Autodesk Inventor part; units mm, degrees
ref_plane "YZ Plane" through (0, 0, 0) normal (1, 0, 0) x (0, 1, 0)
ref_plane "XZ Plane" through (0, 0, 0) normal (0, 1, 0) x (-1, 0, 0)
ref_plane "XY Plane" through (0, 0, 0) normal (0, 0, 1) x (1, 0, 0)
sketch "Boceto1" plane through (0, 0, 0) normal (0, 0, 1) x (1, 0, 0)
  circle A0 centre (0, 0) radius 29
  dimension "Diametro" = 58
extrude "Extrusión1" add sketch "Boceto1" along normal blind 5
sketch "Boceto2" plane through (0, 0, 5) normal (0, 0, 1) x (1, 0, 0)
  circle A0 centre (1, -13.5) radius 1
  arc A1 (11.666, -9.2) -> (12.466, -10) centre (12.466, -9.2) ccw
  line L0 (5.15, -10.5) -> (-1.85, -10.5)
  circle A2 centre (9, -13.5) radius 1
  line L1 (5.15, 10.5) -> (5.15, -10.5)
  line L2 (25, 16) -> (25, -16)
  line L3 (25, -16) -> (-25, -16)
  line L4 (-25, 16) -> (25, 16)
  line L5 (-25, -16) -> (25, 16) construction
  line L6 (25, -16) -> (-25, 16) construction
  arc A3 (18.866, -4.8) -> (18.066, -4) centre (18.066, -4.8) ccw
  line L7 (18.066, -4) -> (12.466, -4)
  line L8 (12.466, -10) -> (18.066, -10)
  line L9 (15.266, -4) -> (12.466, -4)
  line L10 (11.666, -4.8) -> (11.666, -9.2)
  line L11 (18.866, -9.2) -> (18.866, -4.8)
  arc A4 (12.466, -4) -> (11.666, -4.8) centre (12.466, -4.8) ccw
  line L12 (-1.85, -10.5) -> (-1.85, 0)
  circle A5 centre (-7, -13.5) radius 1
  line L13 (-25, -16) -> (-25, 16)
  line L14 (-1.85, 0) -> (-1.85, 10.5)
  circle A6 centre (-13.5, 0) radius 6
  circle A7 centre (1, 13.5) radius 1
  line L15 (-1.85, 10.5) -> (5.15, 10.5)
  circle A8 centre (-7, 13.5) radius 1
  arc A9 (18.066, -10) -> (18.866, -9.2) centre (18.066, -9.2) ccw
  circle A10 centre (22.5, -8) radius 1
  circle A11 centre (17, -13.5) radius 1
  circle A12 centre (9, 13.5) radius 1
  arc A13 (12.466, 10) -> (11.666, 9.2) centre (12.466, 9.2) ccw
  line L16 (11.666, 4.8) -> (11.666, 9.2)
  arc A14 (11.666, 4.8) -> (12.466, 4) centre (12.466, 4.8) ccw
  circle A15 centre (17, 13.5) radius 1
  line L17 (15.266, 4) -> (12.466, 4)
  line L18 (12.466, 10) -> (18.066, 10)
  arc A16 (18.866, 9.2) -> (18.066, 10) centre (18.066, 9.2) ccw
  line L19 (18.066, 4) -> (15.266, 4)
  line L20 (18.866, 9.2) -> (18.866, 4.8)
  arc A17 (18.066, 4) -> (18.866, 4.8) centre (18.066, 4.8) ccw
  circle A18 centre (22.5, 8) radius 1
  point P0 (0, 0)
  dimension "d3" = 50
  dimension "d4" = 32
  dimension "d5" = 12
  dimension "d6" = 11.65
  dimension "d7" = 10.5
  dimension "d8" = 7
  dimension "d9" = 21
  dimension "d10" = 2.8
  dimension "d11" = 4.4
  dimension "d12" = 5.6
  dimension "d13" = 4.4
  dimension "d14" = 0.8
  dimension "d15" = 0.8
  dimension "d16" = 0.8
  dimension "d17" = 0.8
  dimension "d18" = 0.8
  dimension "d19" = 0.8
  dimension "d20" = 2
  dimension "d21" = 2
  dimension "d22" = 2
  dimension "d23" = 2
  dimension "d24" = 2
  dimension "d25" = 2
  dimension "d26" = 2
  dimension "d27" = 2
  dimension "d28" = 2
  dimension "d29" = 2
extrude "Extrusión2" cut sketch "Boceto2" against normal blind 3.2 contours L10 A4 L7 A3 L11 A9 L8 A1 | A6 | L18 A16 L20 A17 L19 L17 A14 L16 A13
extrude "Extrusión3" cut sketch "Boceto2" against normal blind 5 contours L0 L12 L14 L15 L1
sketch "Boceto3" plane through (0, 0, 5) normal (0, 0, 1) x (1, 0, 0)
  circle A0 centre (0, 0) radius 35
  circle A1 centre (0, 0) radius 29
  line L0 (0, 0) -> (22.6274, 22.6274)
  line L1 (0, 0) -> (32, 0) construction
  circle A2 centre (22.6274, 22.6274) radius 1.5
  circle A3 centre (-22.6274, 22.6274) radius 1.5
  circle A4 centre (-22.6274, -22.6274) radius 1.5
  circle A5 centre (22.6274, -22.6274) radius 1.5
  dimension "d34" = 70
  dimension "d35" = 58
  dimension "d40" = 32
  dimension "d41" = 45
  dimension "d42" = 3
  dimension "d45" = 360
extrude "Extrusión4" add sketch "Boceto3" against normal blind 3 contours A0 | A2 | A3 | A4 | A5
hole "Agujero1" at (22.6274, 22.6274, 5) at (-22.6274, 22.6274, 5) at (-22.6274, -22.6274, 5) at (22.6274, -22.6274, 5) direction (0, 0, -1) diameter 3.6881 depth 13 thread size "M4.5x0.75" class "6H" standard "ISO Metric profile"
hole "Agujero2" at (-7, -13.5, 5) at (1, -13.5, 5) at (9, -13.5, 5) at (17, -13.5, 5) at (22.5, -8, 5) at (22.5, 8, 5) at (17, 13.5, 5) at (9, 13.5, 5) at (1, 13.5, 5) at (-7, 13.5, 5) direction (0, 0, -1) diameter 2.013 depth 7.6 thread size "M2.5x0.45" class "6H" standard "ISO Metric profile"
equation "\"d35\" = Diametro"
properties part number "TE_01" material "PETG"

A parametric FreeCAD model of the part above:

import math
import FreeCAD as App
import Part
import Sketcher
from FreeCAD import Vector

doc = App.newDocument("Part")
body = doc.addObject("PartDesign::Body", "Body")

sketch1 = body.newObject("Sketcher::SketchObject", "Sketch")
sketch1.AttachmentSupport = (doc.getObject("XY_Plane"), [""])
sketch1.MapMode = "FlatFace"
sketch1.addGeometry(Part.Circle(Vector(0, 0, 0), Vector(0, 0, 1), 29), False)
sketch1.addConstraint([
    Sketcher.Constraint("Coincident", 0, 3, -1, 1),
    Sketcher.Constraint("Diameter", 0, 58.0),
])
pad1 = body.newObject("PartDesign::Pad", "Pad")
pad1.Profile = sketch1
pad1.Length = 5

sketch2 = body.newObject("Sketcher::SketchObject", "Sketch001")
sketch2.AttachmentSupport = (doc.getObject("XY_Plane"), [""])
sketch2.MapMode = "FlatFace"
sketch2.AttachmentOffset = App.Placement(Vector(0, 0, 5), App.Rotation())
sketch2.addGeometry([
    Part.LineSegment(Vector(11.7, -4.8, 0), Vector(11.7, -9.2, 0)),
    Part.ArcOfCircle(Part.Circle(Vector(12.5, -9.2, 0), Vector(0, 0, 1), 0.8), math.radians(180), math.radians(270)),
    Part.LineSegment(Vector(12.5, -10, 0), Vector(18.1, -10, 0)),
    Part.ArcOfCircle(Part.Circle(Vector(18.1, -9.2, 0), Vector(0, 0, 1), 0.8), math.radians(-90), math.radians(0)),
    Part.LineSegment(Vector(18.9, -9.2, 0), Vector(18.9, -4.8, 0)),
    Part.ArcOfCircle(Part.Circle(Vector(18.1, -4.8, 0), Vector(0, 0, 1), 0.8), math.radians(0), math.radians(90)),
    Part.LineSegment(Vector(18.1, -4, 0), Vector(12.5, -4, 0)),
    Part.ArcOfCircle(Part.Circle(Vector(12.5, -4.8, 0), Vector(0, 0, 1), 0.8), math.radians(90), math.radians(180)),
    Part.Circle(Vector(-13.5, 0, 0), Vector(0, 0, 1), 6),
    Part.LineSegment(Vector(18.1, 10, 0), Vector(12.5, 10, 0)),
    Part.ArcOfCircle(Part.Circle(Vector(12.5, 9.2, 0), Vector(0, 0, 1), 0.8), math.radians(90), math.radians(180)),
    Part.LineSegment(Vector(11.7, 9.2, 0), Vector(11.7, 4.8, 0)),
    Part.ArcOfCircle(Part.Circle(Vector(12.5, 4.8, 0), Vector(0, 0, 1), 0.8), math.radians(180), math.radians(270)),
    Part.LineSegment(Vector(12.5, 4, 0), Vector(18.1, 4, 0)),
    Part.ArcOfCircle(Part.Circle(Vector(18.1, 4.8, 0), Vector(0, 0, 1), 0.8), math.radians(-90), math.radians(0)),
    Part.LineSegment(Vector(18.9, 4.8, 0), Vector(18.9, 9.2, 0)),
    Part.ArcOfCircle(Part.Circle(Vector(18.1, 9.2, 0), Vector(0, 0, 1), 0.8), math.radians(0), math.radians(90)),
], False)
sketch2.addConstraint([
    Sketcher.Constraint("Tangent", 0, 2, 1, 1),
    Sketcher.Constraint("Tangent", 1, 2, 2, 1),
    Sketcher.Constraint("Tangent", 2, 2, 3, 1),
    Sketcher.Constraint("Tangent", 3, 2, 4, 1),
    Sketcher.Constraint("Tangent", 4, 2, 5, 1),
    Sketcher.Constraint("Tangent", 5, 2, 6, 1),
    Sketcher.Constraint("Tangent", 6, 2, 7, 1),
    Sketcher.Constraint("Tangent", 7, 2, 0, 1),
    Sketcher.Constraint("Tangent", 9, 2, 10, 1),
    Sketcher.Constraint("Tangent", 10, 2, 11, 1),
    Sketcher.Constraint("Tangent", 11, 2, 12, 1),
    Sketcher.Constraint("Tangent", 12, 2, 13, 1),
    Sketcher.Constraint("Tangent", 13, 2, 14, 1),
    Sketcher.Constraint("Tangent", 14, 2, 15, 1),
    Sketcher.Constraint("Tangent", 15, 2, 16, 1),
    Sketcher.Constraint("Tangent", 16, 2, 9, 1),
    Sketcher.Constraint("Vertical", 0),
    Sketcher.Constraint("Horizontal", 2),
    Sketcher.Constraint("Vertical", 4),
    Sketcher.Constraint("Horizontal", 6),
    Sketcher.Constraint("Horizontal", 9),
    Sketcher.Constraint("Vertical", 11),
    Sketcher.Constraint("Horizontal", 13),
    Sketcher.Constraint("Vertical", 15),
    Sketcher.Constraint("Equal", 1, 3),
    Sketcher.Constraint("Equal", 3, 5),
    Sketcher.Constraint("Equal", 5, 7),
    Sketcher.Constraint("Equal", 7, 10),
    Sketcher.Constraint("Equal", 10, 12),
    Sketcher.Constraint("Equal", 12, 14),
    Sketcher.Constraint("Equal", 14, 16),
    Sketcher.Constraint("Symmetric", 1, 3, 10, 3, -1),
    Sketcher.Constraint("Symmetric", 5, 3, 14, 3, -1),
    Sketcher.Constraint("PointOnObject", 8, 3, -1),
    Sketcher.Constraint("Diameter", 8, 12.0),
    Sketcher.Constraint("Radius", 1, 0.8),
    Sketcher.Constraint("DistanceX", 2, 1, 2, 2, 5.6),
    Sketcher.Constraint("DistanceY", 0, 2, 0, 1, 4.4),
    Sketcher.Constraint("DistanceY", 1, 2, -1, 1, 10.0),
    Sketcher.Constraint("DistanceX", 8, 3, -1, 1, 13.5),
    Sketcher.Constraint("DistanceX", -1, 1, 1, 3, 12.466),
])
pocket1 = body.newObject("PartDesign::Pocket", "Pocket")
pocket1.Profile = sketch2
pocket1.Length = 3.2

sketch3 = body.newObject("Sketcher::SketchObject", "Sketch002")
sketch3.AttachmentSupport = (doc.getObject("XY_Plane"), [""])
sketch3.MapMode = "FlatFace"
sketch3.AttachmentOffset = App.Placement(Vector(0, 0, 5), App.Rotation())
sketch3.addGeometry([
    Part.LineSegment(Vector(-2, -10, 0), Vector(5, -10, 0)),
    Part.LineSegment(Vector(5, -10, 0), Vector(5, 10, 0)),
    Part.LineSegment(Vector(5, 10, 0), Vector(-2, 10, 0)),
    Part.LineSegment(Vector(-2, 10, 0), Vector(-2, -10, 0)),
], False)
sketch3.addConstraint([
    Sketcher.Constraint("Coincident", 0, 2, 1, 1),
    Sketcher.Constraint("Coincident", 1, 2, 2, 1),
    Sketcher.Constraint("Coincident", 2, 2, 3, 1),
    Sketcher.Constraint("Coincident", 3, 2, 0, 1),
    Sketcher.Constraint("Horizontal", 0),
    Sketcher.Constraint("Vertical", 1),
    Sketcher.Constraint("Horizontal", 2),
    Sketcher.Constraint("Vertical", 3),
    Sketcher.Constraint("DistanceX", 0, 1, 0, 2, 7.0),
    Sketcher.Constraint("DistanceY", 1, 1, 1, 2, 21.0),
    Sketcher.Constraint("DistanceY", 0, 2, -1, 1, 10.5),
    Sketcher.Constraint("DistanceX", -1, 1, 0, 2, 5.15),
])
pocket2 = body.newObject("PartDesign::Pocket", "Pocket001")
pocket2.Profile = sketch3
pocket2.Length = 5

sketch4 = body.newObject("Sketcher::SketchObject", "Sketch003")
sketch4.AttachmentSupport = (doc.getObject("XY_Plane"), [""])
sketch4.MapMode = "FlatFace"
sketch4.AttachmentOffset = App.Placement(Vector(0, 0, 5), App.Rotation())
sketch4.addGeometry([
    Part.Circle(Vector(0, 0, 0), Vector(0, 0, 1), 35),
    Part.Circle(Vector(0, 0, 0), Vector(0, 0, 1), 29),
], False)
sketch4.addConstraint([
    Sketcher.Constraint("Coincident", 0, 3, -1, 1),
    Sketcher.Constraint("Coincident", 1, 3, -1, 1),
    Sketcher.Constraint("Diameter", 0, 70.0),
    Sketcher.Constraint("Diameter", 1, 58.0),
])
pad2 = body.newObject("PartDesign::Pad", "Pad001")
pad2.Profile = sketch4
pad2.Length = 3
pad2.Reversed = True

sketch5 = body.newObject("Sketcher::SketchObject", "Sketch004")
sketch5.AttachmentSupport = (doc.getObject("XY_Plane"), [""])
sketch5.MapMode = "FlatFace"
sketch5.AttachmentOffset = App.Placement(Vector(0, 0, 5), App.Rotation())
sketch5.addGeometry([
    Part.Circle(Vector(22.6, 22.6, 0), Vector(0, 0, 1), 1.8),
    Part.Circle(Vector(-22.6, 22.6, 0), Vector(0, 0, 1), 1.8),
    Part.Circle(Vector(-22.6, -22.6, 0), Vector(0, 0, 1), 1.8),
    Part.Circle(Vector(22.6, -22.6, 0), Vector(0, 0, 1), 1.8),
], False)
sketch5.addConstraint([
    Sketcher.Constraint("Equal", 0, 1),
    Sketcher.Constraint("Equal", 1, 2),
    Sketcher.Constraint("Equal", 2, 3),
    Sketcher.Constraint("Symmetric", 0, 3, 2, 3, -1, 1),
    Sketcher.Constraint("Symmetric", 1, 3, 3, 3, -1, 1),
    Sketcher.Constraint("Symmetric", 0, 3, 1, 3, -2),
    Sketcher.Constraint("Diameter", 0, 3.688),
    Sketcher.Constraint("DistanceX", -1, 1, 0, 3, 22.6274),
    Sketcher.Constraint("DistanceY", -1, 1, 0, 3, 22.6274),
])
doc.recompute()
hole = body.newObject("PartDesign::Hole", "Hole")
hole.Profile = sketch5
hole.ThreadType = "None"
hole.Diameter = 3.6881
hole.DepthType = "Dimension"
hole.Depth = 13
hole.DrillPoint = "Flat"

sketch6 = body.newObject("Sketcher::SketchObject", "Sketch005")
sketch6.AttachmentSupport = (doc.getObject("XY_Plane"), [""])
sketch6.MapMode = "FlatFace"
sketch6.AttachmentOffset = App.Placement(Vector(0, 0, 5), App.Rotation())
sketch6.addGeometry([
    Part.Circle(Vector(-7, -13.5, 0), Vector(0, 0, 1), 1),
    Part.Circle(Vector(1, -13.5, 0), Vector(0, 0, 1), 1),
    Part.Circle(Vector(9, -13.5, 0), Vector(0, 0, 1), 1),
    Part.Circle(Vector(17, -13.5, 0), Vector(0, 0, 1), 1),
    Part.Circle(Vector(22.5, -8, 0), Vector(0, 0, 1), 1),
    Part.Circle(Vector(22.5, 8, 0), Vector(0, 0, 1), 1),
    Part.Circle(Vector(17, 13.5, 0), Vector(0, 0, 1), 1),
    Part.Circle(Vector(9, 13.5, 0), Vector(0, 0, 1), 1),
    Part.Circle(Vector(1, 13.5, 0), Vector(0, 0, 1), 1),
    Part.Circle(Vector(-7, 13.5, 0), Vector(0, 0, 1), 1),
], False)
sketch6.addConstraint([
    Sketcher.Constraint("Equal", 0, 1),
    Sketcher.Constraint("Equal", 1, 2),
    Sketcher.Constraint("Equal", 2, 3),
    Sketcher.Constraint("Equal", 3, 4),
    Sketcher.Constraint("Equal", 4, 5),
    Sketcher.Constraint("Equal", 5, 6),
    Sketcher.Constraint("Equal", 6, 7),
    Sketcher.Constraint("Equal", 7, 8),
    Sketcher.Constraint("Equal", 8, 9),
    Sketcher.Constraint("Symmetric", 4, 3, 5, 3, -1),
    Sketcher.Constraint("Symmetric", 3, 3, 6, 3, -1),
    Sketcher.Constraint("Symmetric", 2, 3, 7, 3, -1),
    Sketcher.Constraint("Symmetric", 1, 3, 8, 3, -1),
    Sketcher.Constraint("Symmetric", 0, 3, 9, 3, -1),
    Sketcher.Constraint("Horizontal", 0, 3, 1, 3),
    Sketcher.Constraint("Horizontal", 1, 3, 2, 3),
    Sketcher.Constraint("Horizontal", 2, 3, 3, 3),
    Sketcher.Constraint("Diameter", 0, 2.013),
    Sketcher.Constraint("DistanceX", 0, 3, -1, 1, 7.0),
    Sketcher.Constraint("DistanceX", -1, 1, 1, 3, 1.0),
    Sketcher.Constraint("DistanceX", -1, 1, 2, 3, 9.0),
    Sketcher.Constraint("DistanceX", -1, 1, 3, 3, 17.0),
    Sketcher.Constraint("DistanceY", 4, 3, -1, 1, 8.0),
    Sketcher.Constraint("DistanceY", 3, 3, 6, 3, 27.0),
    Sketcher.Constraint("DistanceX", -1, 1, 4, 3, 22.5),
])
doc.recompute()
hole2 = body.newObject("PartDesign::Hole", "Hole001")
hole2.Profile = sketch6
hole2.ThreadType = "None"
hole2.Diameter = 2.013
hole2.DepthType = "Dimension"
hole2.Depth = 7.6
hole2.DrillPoint = "Flat"

doc.recompute()
